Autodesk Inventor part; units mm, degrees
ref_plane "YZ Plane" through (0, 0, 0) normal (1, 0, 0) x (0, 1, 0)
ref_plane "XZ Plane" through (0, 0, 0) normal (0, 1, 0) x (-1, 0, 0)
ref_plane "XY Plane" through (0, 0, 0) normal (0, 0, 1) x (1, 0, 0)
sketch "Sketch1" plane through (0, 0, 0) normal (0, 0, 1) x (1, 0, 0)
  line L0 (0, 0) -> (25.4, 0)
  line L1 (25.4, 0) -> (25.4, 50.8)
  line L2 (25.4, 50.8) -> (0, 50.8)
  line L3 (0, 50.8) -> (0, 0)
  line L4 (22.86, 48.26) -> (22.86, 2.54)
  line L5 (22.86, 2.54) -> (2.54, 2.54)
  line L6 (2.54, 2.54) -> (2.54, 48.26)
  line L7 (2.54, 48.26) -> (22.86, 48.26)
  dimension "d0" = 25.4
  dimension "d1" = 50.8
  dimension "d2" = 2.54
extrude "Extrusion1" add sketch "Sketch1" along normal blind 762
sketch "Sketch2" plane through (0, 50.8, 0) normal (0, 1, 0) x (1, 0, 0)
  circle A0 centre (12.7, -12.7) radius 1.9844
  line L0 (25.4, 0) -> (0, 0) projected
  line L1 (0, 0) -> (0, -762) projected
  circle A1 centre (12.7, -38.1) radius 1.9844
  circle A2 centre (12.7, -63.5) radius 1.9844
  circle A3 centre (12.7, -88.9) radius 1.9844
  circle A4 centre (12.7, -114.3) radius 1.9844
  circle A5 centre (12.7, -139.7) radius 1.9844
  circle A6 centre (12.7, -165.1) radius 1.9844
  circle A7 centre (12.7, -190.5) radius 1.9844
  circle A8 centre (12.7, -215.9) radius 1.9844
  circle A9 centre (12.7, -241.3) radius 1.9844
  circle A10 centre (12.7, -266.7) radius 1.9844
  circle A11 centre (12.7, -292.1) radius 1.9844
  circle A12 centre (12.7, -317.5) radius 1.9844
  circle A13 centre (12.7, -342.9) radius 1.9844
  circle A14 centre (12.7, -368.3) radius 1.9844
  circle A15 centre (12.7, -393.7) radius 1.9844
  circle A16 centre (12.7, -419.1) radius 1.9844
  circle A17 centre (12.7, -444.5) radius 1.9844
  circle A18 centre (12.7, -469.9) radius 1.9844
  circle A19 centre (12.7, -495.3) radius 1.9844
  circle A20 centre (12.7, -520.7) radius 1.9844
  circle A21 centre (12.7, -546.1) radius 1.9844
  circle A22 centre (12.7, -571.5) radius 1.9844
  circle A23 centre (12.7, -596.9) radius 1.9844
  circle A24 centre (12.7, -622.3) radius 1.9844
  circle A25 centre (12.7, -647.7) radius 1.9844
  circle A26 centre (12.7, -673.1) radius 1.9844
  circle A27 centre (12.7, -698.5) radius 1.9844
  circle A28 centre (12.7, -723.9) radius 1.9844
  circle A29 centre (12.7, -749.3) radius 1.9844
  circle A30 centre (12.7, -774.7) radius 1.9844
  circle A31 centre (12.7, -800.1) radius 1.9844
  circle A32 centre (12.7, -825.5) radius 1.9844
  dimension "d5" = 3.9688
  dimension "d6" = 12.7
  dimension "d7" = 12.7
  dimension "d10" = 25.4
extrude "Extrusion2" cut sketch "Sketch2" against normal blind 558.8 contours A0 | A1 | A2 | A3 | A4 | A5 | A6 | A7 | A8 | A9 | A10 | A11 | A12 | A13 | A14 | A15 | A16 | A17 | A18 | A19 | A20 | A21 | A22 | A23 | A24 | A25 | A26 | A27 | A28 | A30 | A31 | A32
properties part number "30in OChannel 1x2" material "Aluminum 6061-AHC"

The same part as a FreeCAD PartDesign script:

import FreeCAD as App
import Part
import Sketcher

V = App.Vector
Q = App.Units.Quantity

doc = App.newDocument("Part")
body = doc.addObject("PartDesign::Body", "Body")

# Sketch on XY plane
sketch1 = body.newObject("Sketcher::SketchObject", "Sketch")
sketch1.AttachmentSupport = (doc.getObject("XY_Plane"), [""])
sketch1.MapMode = "FlatFace"
sketch1.addGeometry([
    Part.LineSegment(V(0, 51, 0), V(0, 0, 0)),  # 0
    Part.LineSegment(V(0, 0, 0), V(25, 0, 0)),  # 1
    Part.LineSegment(V(25, 0, 0), V(25, 51, 0)),  # 2
    Part.LineSegment(V(25, 51, 0), V(0, 51, 0)),  # 3
    Part.LineSegment(V(3, 48, 0), V(23, 48, 0)),  # 4
    Part.LineSegment(V(23, 48, 0), V(23, 3, 0)),  # 5
    Part.LineSegment(V(23, 3, 0), V(3, 3, 0)),  # 6
    Part.LineSegment(V(3, 3, 0), V(3, 48, 0)),  # 7
], False)
sketch1.addConstraint([
    Sketcher.Constraint("Coincident", 0, 2, 1, 1),
    Sketcher.Constraint("Coincident", 1, 2, 2, 1),
    Sketcher.Constraint("Coincident", 2, 2, 3, 1),
    Sketcher.Constraint("Coincident", 3, 2, 0, 1),
    Sketcher.Constraint("Coincident", 4, 2, 5, 1),
    Sketcher.Constraint("Coincident", 5, 2, 6, 1),
    Sketcher.Constraint("Coincident", 6, 2, 7, 1),
    Sketcher.Constraint("Coincident", 7, 2, 4, 1),
    Sketcher.Constraint("Vertical", 0),
    Sketcher.Constraint("Horizontal", 1),
    Sketcher.Constraint("Vertical", 2),
    Sketcher.Constraint("Horizontal", 3),
    Sketcher.Constraint("Horizontal", 4),
    Sketcher.Constraint("Vertical", 5),
    Sketcher.Constraint("Horizontal", 6),
    Sketcher.Constraint("Vertical", 7),
    Sketcher.Constraint("Coincident", 0, 2, -1, 1),
    Sketcher.Constraint("DistanceX", 1, 1, 1, 2, Q("1 in")),
    Sketcher.Constraint("DistanceY", 0, 2, 0, 1, Q("2 in")),
    Sketcher.Constraint("DistanceY", -1, 1, 5, 2, Q("0.1 in")),
    Sketcher.Constraint("DistanceX", -1, 1, 6, 2, Q("0.1 in")),
    Sketcher.Constraint("DistanceX", 4, 2, 2, 2, Q("0.1 in")),
    Sketcher.Constraint("DistanceY", 4, 2, 2, 2, Q("0.1 in")),
])
pad1 = body.newObject("PartDesign::Pad", "Pad")
pad1.Profile = sketch1
pad1.Length = Q("30 in")

# Sketch on XZ plane
sketch2 = body.newObject("Sketcher::SketchObject", "Sketch001")
sketch2.AttachmentSupport = (doc.getObject("XZ_Plane"), [""])
sketch2.MapMode = "FlatFace"
sketch2.AttachmentOffset = App.Placement(V(0, 0, -2 * 25.4), App.Rotation())
sketch2.addGeometry([
    Part.Circle(V(12.7, 12.7, 0), V(0, 0, 1), 2),  # 0
    Part.Circle(V(12.7, 38.1, 0), V(0, 0, 1), 2),  # 1
    Part.Circle(V(12.7, 63.5, 0), V(0, 0, 1), 2),  # 2
    Part.Circle(V(12.7, 88.9, 0), V(0, 0, 1), 2),  # 3
    Part.Circle(V(12.7, 114.3, 0), V(0, 0, 1), 2),  # 4
    Part.Circle(V(12.7, 139.7, 0), V(0, 0, 1), 2),  # 5
    Part.Circle(V(12.7, 165.1, 0), V(0, 0, 1), 2),  # 6
    Part.Circle(V(12.7, 190.5, 0), V(0, 0, 1), 2),  # 7
    Part.Circle(V(12.7, 215.9, 0), V(0, 0, 1), 2),  # 8
    Part.Circle(V(12.7, 241.3, 0), V(0, 0, 1), 2),  # 9
    Part.Circle(V(12.7, 266.7, 0), V(0, 0, 1), 2),  # 10
    Part.Circle(V(12.7, 292.1, 0), V(0, 0, 1), 2),  # 11
    Part.Circle(V(12.7, 317.5, 0), V(0, 0, 1), 2),  # 12
    Part.Circle(V(12.7, 342.9, 0), V(0, 0, 1), 2),  # 13
    Part.Circle(V(12.7, 368.3, 0), V(0, 0, 1), 2),  # 14
    Part.Circle(V(12.7, 393.7, 0), V(0, 0, 1), 2),  # 15
    Part.Circle(V(12.7, 419.1, 0), V(0, 0, 1), 2),  # 16
    Part.Circle(V(12.7, 444.5, 0), V(0, 0, 1), 2),  # 17
    Part.Circle(V(12.7, 469.9, 0), V(0, 0, 1), 2),  # 18
    Part.Circle(V(12.7, 495.3, 0), V(0, 0, 1), 2),  # 19
    Part.Circle(V(12.7, 520.7, 0), V(0, 0, 1), 2),  # 20
    Part.Circle(V(12.7, 546.1, 0), V(0, 0, 1), 2),  # 21
    Part.Circle(V(12.7, 571.5, 0), V(0, 0, 1), 2),  # 22
    Part.Circle(V(12.7, 596.9, 0), V(0, 0, 1), 2),  # 23
    Part.Circle(V(12.7, 622.3, 0), V(0, 0, 1), 2),  # 24
    Part.Circle(V(12.7, 647.7, 0), V(0, 0, 1), 2),  # 25
    Part.Circle(V(12.7, 673.1, 0), V(0, 0, 1), 2),  # 26
    Part.Circle(V(12.7, 698.5, 0), V(0, 0, 1), 2),  # 27
    Part.Circle(V(12.7, 723.9, 0), V(0, 0, 1), 2),  # 28
    Part.Circle(V(12.7, 774.7, 0), V(0, 0, 1), 2),  # 29
    Part.Circle(V(12.7, 800.1, 0), V(0, 0, 1), 2),  # 30
    Part.Circle(V(12.7, 825.5, 0), V(0, 0, 1), 2),  # 31
], False)
sketch2.addConstraint([
    Sketcher.Constraint("Equal", 0, 1),
    Sketcher.Constraint("Equal", 1, 2),
    Sketcher.Constraint("Equal", 2, 3),
    Sketcher.Constraint("Equal", 3, 4),
    Sketcher.Constraint("Equal", 4, 5),
    Sketcher.Constraint("Equal", 5, 6),
    Sketcher.Constraint("Equal", 6, 7),
    Sketcher.Constraint("Equal", 7, 8),
    Sketcher.Constraint("Equal", 8, 9),
    Sketcher.Constraint("Equal", 9, 10),
    Sketcher.Constraint("Equal", 10, 11),
    Sketcher.Constraint("Equal", 11, 12),
    Sketcher.Constraint("Equal", 12, 13),
    Sketcher.Constraint("Equal", 13, 14),
    Sketcher.Constraint("Equal", 14, 15),
    Sketcher.Constraint("Equal", 15, 16),
    Sketcher.Constraint("Equal", 16, 17),
    Sketcher.Constraint("Equal", 17, 18),
    Sketcher.Constraint("Equal", 18, 19),
    Sketcher.Constraint("Equal", 19, 20),
    Sketcher.Constraint("Equal", 20, 21),
    Sketcher.Constraint("Equal", 21, 22),
    Sketcher.Constraint("Equal", 22, 23),
    Sketcher.Constraint("Equal", 23, 24),
    Sketcher.Constraint("Equal", 24, 25),
    Sketcher.Constraint("Equal", 25, 26),
    Sketcher.Constraint("Equal", 26, 27),
    Sketcher.Constraint("Equal", 27, 28),
    Sketcher.Constraint("Equal", 28, 29),
    Sketcher.Constraint("Equal", 29, 30),
    Sketcher.Constraint("Equal", 30, 31),
    Sketcher.Constraint("Vertical", 0, 3, 1, 3),
    Sketcher.Constraint("Vertical", 1, 3, 2, 3),
    Sketcher.Constraint("Vertical", 2, 3, 3, 3),
    Sketcher.Constraint("Vertical", 3, 3, 4, 3),
    Sketcher.Constraint("Vertical", 4, 3, 5, 3),
    Sketcher.Constraint("Vertical", 5, 3, 6, 3),
    Sketcher.Constraint("Vertical", 6, 3, 7, 3),
    Sketcher.Constraint("Vertical", 7, 3, 8, 3),
    Sketcher.Constraint("Vertical", 8, 3, 9, 3),
    Sketcher.Constraint("Vertical", 9, 3, 10, 3),
    Sketcher.Constraint("Vertical", 10, 3, 11, 3),
    Sketcher.Constraint("Vertical", 11, 3, 12, 3),
    Sketcher.Constraint("Vertical", 12, 3, 13, 3),
    Sketcher.Constraint("Vertical", 13, 3, 14, 3),
    Sketcher.Constraint("Vertical", 14, 3, 15, 3),
    Sketcher.Constraint("Vertical", 15, 3, 16, 3),
    Sketcher.Constraint("Vertical", 16, 3, 17, 3),
    Sketcher.Constraint("Vertical", 17, 3, 18, 3),
    Sketcher.Constraint("Vertical", 18, 3, 19, 3),
    Sketcher.Constraint("Vertical", 19, 3, 20, 3),
    Sketcher.Constraint("Vertical", 20, 3, 21, 3),
    Sketcher.Constraint("Vertical", 21, 3, 22, 3),
    Sketcher.Constraint("Vertical", 22, 3, 23, 3),
    Sketcher.Constraint("Vertical", 23, 3, 24, 3),
    Sketcher.Constraint("Vertical", 24, 3, 25, 3),
    Sketcher.Constraint("Vertical", 25, 3, 26, 3),
    Sketcher.Constraint("Vertical", 26, 3, 27, 3),
    Sketcher.Constraint("Vertical", 27, 3, 28, 3),
    Sketcher.Constraint("Vertical", 28, 3, 29, 3),
    Sketcher.Constraint("Vertical", 29, 3, 30, 3),
    Sketcher.Constraint("Vertical", 30, 3, 31, 3),
    Sketcher.Constraint("Diameter", 0, Q("0.156252 in")),
    Sketcher.Constraint("DistanceY", 0, 3, 1, 3, Q("1 in")),
    Sketcher.Constraint("DistanceY", 1, 3, 2, 3, Q("1 in")),
    Sketcher.Constraint("DistanceY", 2, 3, 3, 3, Q("1 in")),
    Sketcher.Constraint("DistanceY", 3, 3, 4, 3, Q("1 in")),
    Sketcher.Constraint("DistanceY", 4, 3, 5, 3, Q("1 in")),
    Sketcher.Constraint("DistanceY", 5, 3, 6, 3, Q("1 in")),
    Sketcher.Constraint("DistanceY", 6, 3, 7, 3, Q("1 in")),
    Sketcher.Constraint("DistanceY", 7, 3, 8, 3, Q("1 in")),
    Sketcher.Constraint("DistanceY", 8, 3, 9, 3, Q("1 in")),
    Sketcher.Constraint("DistanceY", 9, 3, 10, 3, Q("1 in")),
    Sketcher.Constraint("DistanceY", 10, 3, 11, 3, Q("1 in")),
    Sketcher.Constraint("DistanceY", 11, 3, 12, 3, Q("1 in")),
    Sketcher.Constraint("DistanceY", 12, 3, 13, 3, Q("1 in")),
    Sketcher.Constraint("DistanceY", 13, 3, 14, 3, Q("1 in")),
    Sketcher.Constraint("DistanceY", 14, 3, 15, 3, Q("1 in")),
    Sketcher.Constraint("DistanceY", 15, 3, 16, 3, Q("1 in")),
    Sketcher.Constraint("DistanceY", 16, 3, 17, 3, Q("1 in")),
    Sketcher.Constraint("DistanceY", 17, 3, 18, 3, Q("1 in")),
    Sketcher.Constraint("DistanceY", 18, 3, 19, 3, Q("1 in")),
    Sketcher.Constraint("DistanceY", 19, 3, 20, 3, Q("1 in")),
    Sketcher.Constraint("DistanceY", 20, 3, 21, 3, Q("1 in")),
    Sketcher.Constraint("DistanceY", 21, 3, 22, 3, Q("1 in")),
    Sketcher.Constraint("DistanceY", 22, 3, 23, 3, Q("1 in")),
    Sketcher.Constraint("DistanceY", 23, 3, 24, 3, Q("1 in")),
    Sketcher.Constraint("DistanceY", 24, 3, 25, 3, Q("1 in")),
    Sketcher.Constraint("DistanceY", 25, 3, 26, 3, Q("1 in")),
    Sketcher.Constraint("DistanceY", 26, 3, 27, 3, Q("1 in")),
    Sketcher.Constraint("DistanceY", 27, 3, 28, 3, Q("1 in")),
    Sketcher.Constraint("DistanceY", 29, 3, 30, 3, Q("1 in")),
    Sketcher.Constraint("DistanceY", 30, 3, 31, 3, Q("1 in")),
    Sketcher.Constraint("DistanceX", -1, 1, 0, 3, Q("0.5 in")),
    Sketcher.Constraint("DistanceY", -1, 1, 0, 3, Q("0.5 in")),
    Sketcher.Constraint("DistanceY", 28, 3, 29, 3, Q("2 in")),
])
pocket1 = body.newObject("PartDesign::Pocket", "Pocket")
pocket1.Profile = sketch2
pocket1.Length = Q("22 in")
pocket1.Reversed = True

doc.recompute()
